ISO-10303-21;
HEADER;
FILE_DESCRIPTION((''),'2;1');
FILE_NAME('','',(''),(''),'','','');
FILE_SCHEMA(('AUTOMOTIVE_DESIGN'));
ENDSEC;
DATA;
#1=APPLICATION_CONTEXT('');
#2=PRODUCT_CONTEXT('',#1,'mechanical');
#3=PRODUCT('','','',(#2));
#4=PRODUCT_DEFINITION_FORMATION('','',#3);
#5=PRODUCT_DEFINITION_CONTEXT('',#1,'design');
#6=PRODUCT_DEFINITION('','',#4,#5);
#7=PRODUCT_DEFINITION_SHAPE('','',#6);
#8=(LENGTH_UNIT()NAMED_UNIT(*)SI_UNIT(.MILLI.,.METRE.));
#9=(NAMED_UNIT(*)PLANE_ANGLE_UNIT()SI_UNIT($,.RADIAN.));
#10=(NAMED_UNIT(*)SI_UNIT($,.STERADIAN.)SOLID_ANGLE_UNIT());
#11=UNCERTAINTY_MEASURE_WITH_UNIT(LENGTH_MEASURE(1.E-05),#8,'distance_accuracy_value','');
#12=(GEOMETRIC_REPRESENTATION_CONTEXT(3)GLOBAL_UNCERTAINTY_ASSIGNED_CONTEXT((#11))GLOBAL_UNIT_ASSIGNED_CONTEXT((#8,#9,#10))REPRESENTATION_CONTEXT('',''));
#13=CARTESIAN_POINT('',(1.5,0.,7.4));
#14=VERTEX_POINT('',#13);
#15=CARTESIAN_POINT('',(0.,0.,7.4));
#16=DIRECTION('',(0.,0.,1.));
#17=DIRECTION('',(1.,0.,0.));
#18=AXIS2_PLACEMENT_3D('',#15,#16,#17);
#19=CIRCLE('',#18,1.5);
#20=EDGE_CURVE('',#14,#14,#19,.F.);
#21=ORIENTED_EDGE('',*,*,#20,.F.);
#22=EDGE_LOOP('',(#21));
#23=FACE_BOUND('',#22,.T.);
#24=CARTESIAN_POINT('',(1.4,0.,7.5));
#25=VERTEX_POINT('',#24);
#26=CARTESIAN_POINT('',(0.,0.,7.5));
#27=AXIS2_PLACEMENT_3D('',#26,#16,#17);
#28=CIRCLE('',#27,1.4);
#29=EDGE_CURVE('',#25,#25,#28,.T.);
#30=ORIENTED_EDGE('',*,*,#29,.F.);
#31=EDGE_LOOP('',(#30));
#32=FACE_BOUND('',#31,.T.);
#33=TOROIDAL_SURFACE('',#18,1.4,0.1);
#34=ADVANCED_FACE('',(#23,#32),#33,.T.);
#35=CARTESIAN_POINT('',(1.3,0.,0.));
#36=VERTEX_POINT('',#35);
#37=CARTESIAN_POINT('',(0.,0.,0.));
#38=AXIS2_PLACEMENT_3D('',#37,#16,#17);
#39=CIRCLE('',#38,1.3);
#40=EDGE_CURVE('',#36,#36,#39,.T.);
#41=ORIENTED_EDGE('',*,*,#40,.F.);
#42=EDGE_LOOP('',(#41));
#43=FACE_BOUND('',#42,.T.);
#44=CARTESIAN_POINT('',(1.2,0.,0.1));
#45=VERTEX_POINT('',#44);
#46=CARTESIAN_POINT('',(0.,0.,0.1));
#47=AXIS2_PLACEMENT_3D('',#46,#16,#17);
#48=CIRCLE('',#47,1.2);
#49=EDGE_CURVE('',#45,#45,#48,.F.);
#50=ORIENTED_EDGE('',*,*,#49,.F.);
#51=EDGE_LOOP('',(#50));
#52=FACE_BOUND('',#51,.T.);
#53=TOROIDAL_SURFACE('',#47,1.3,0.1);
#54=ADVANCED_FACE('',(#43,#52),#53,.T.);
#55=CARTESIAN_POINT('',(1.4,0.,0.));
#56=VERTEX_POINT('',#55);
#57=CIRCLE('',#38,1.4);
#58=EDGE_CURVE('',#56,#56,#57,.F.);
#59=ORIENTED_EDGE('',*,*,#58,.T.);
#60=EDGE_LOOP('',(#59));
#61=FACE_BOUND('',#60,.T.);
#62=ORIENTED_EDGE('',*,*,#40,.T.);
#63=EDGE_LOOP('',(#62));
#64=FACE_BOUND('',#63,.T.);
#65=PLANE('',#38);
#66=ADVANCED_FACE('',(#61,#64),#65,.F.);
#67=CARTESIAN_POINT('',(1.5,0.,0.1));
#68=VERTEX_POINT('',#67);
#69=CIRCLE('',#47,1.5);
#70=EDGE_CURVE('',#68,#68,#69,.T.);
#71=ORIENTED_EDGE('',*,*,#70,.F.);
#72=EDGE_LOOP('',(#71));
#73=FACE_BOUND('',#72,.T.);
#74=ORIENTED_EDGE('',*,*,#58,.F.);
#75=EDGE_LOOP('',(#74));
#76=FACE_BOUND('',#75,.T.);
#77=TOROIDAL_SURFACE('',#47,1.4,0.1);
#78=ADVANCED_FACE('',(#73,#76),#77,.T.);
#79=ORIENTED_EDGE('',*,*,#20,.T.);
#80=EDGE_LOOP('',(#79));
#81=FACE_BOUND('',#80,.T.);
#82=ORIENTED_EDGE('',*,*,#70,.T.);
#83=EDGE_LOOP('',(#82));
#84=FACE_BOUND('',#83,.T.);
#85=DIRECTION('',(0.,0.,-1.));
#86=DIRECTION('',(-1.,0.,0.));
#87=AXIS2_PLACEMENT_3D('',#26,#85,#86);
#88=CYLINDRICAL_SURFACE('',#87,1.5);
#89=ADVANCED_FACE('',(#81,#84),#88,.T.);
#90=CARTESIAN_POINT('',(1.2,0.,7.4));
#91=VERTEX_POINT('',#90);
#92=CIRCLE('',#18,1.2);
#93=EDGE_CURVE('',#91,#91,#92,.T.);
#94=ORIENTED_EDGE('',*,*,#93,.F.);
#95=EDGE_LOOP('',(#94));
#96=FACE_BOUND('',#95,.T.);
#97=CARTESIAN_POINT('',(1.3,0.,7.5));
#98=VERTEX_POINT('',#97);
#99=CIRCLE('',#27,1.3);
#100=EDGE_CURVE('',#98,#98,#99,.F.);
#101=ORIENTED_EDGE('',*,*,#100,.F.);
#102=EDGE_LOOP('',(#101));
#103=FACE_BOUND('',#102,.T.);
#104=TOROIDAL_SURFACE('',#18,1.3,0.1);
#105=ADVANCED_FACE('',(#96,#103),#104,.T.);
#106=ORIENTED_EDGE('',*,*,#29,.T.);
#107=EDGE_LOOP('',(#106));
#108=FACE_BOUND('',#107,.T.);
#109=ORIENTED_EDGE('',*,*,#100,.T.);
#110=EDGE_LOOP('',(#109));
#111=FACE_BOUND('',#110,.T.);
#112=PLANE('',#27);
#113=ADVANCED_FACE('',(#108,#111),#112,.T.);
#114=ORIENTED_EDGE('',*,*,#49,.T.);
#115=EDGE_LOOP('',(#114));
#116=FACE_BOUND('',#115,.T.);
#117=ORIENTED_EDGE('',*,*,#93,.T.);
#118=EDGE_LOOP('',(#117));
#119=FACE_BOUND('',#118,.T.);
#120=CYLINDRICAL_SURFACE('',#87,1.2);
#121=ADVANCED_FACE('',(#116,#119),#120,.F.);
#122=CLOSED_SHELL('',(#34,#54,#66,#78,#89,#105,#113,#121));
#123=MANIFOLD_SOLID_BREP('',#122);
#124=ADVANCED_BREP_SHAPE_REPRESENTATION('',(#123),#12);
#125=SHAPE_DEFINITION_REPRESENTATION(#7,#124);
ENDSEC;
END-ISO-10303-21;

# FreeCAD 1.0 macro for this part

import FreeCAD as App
import Part
import Sketcher


def edges_at(feature, points):
    """Names of the edges that pass closest to the given points."""
    edges = feature.Shape.Edges
    near = lambda p: min(range(len(edges)), key=lambda i: edges[i].distToShape(Part.Vertex(*p))[0])
    return sorted({f"Edge{near(p) + 1}" for p in points})

doc = App.newDocument("Part")
body = doc.addObject("PartDesign::Body", "Body")

# Sketch on XY plane
sketch1 = body.newObject("Sketcher::SketchObject", "Sketch")
sketch1.AttachmentSupport = (doc.getObject("XY_Plane"), [""])
sketch1.MapMode = "FlatFace"
sketch1.addGeometry(Part.Circle(App.Vector(0, 0, 0), App.Vector(0, 0, 1), 1.5), False)
sketch1.addGeometry(Part.Circle(App.Vector(0, 0, 0), App.Vector(0, 0, 1), 1.2), False)
sketch1.addConstraint(Sketcher.Constraint("Coincident", 0, 3, -1, 1))
sketch1.addConstraint(Sketcher.Constraint("Coincident", 1, 3, -1, 1))
sketch1.addConstraint(Sketcher.Constraint("Diameter", 0, 3.0))
sketch1.addConstraint(Sketcher.Constraint("Diameter", 1, 2.4))
pad1 = body.newObject("PartDesign::Pad", "Pad")
pad1.Profile = sketch1
pad1.Length = 7.5
doc.recompute()

fillet = body.newObject("PartDesign::Fillet", "Fillet")
fillet.Base = (pad1, edges_at(pad1, [
    (-1.5, 0, 0),
    (-1.5, 0, 7.5),
    (-1.2, 0, 0),
    (-1.2, 0, 7.5),
]))
fillet.Radius = 0.1

doc.recompute()
